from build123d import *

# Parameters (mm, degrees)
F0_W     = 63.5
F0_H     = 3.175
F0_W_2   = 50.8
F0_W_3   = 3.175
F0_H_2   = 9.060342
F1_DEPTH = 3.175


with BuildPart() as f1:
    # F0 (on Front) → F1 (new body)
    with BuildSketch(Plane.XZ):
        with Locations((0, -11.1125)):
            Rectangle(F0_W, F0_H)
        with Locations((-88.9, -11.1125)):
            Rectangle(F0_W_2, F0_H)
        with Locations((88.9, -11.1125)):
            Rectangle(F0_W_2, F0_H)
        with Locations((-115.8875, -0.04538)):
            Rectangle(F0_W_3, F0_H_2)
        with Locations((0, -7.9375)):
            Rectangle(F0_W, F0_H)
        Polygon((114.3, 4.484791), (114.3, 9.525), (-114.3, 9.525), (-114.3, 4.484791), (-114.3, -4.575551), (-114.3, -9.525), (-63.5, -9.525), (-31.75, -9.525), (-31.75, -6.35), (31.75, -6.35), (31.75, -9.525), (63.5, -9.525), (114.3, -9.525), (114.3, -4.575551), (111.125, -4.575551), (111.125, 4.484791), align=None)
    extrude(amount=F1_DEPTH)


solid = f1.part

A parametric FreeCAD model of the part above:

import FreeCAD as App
import Part
import Sketcher
from FreeCAD import Vector
Q = App.Units.Quantity


def add_polygon(sketch, points):
    """Adds a closed chain of lines whose ends are joined by coincident constraints."""
    first, n = sketch.GeometryCount, len(points)
    for a, b in zip(points, points[1:] + points[:1]):
        sketch.addGeometry(Part.LineSegment(App.Vector(*a, 0), App.Vector(*b, 0)), False)
    for i in range(n):
        sketch.addConstraint(Sketcher.Constraint("Coincident", first + i, 2, first + (i + 1) % n, 1))

doc = App.newDocument("Part")
params = doc.addObject("Spreadsheet::Sheet", "Params")
for row, (alias, value) in enumerate([
    ("sketch1_width", "2 in"),
    ("sketch1_width2", "9 in"),
    ("sketch1_width3", "2.5 in"),
    ("sketch1_width4", "0.125 in"),
    ("pad1_length", "0.125 in"),
], start=1):
    params.set(f"A{row}", alias)
    params.set(f"B{row}", "=" + value)
    params.setAlias(f"B{row}", alias)

body = doc.addObject("PartDesign::Body", "Body")

sketch1 = body.newObject("Sketcher::SketchObject", "Sketch")
sketch1.AttachmentSupport = (doc.getObject("XZ_Plane"), [""])
sketch1.MapMode = "FlatFace"
add_polygon(sketch1, [(-31.75, -12.7), (31.75, -12.7), (31.75, -9.525), (63.5, -9.525), (63.5, -12.7), (114.3, -12.7), (114.3, -4.575551), (111.125, -4.575551), (111.125, 4.484791), (114.3, 4.484791), (114.3, 9.525), (-114.3, 9.525), (-114.3, 4.484791), (-117.475, 4.484791), (-117.475, -4.575551), (-114.3, -4.575551), (-114.3, -12.7), (-63.5, -12.7), (-63.5, -9.525), (-31.75, -9.525)])
sketch1.addConstraint(Sketcher.Constraint("Horizontal", 0))
sketch1.addConstraint(Sketcher.Constraint("Vertical", 1))
sketch1.addConstraint(Sketcher.Constraint("Horizontal", 2))
sketch1.addConstraint(Sketcher.Constraint("Vertical", 3))
sketch1.addConstraint(Sketcher.Constraint("Horizontal", 4))
sketch1.addConstraint(Sketcher.Constraint("Vertical", 5))
sketch1.addConstraint(Sketcher.Constraint("Horizontal", 6))
sketch1.addConstraint(Sketcher.Constraint("Vertical", 7))
sketch1.addConstraint(Sketcher.Constraint("Horizontal", 8))
sketch1.addConstraint(Sketcher.Constraint("Vertical", 9))
sketch1.addConstraint(Sketcher.Constraint("Horizontal", 10))
sketch1.addConstraint(Sketcher.Constraint("Vertical", 11))
sketch1.addConstraint(Sketcher.Constraint("Horizontal", 12))
sketch1.addConstraint(Sketcher.Constraint("Vertical", 13))
sketch1.addConstraint(Sketcher.Constraint("Horizontal", 14))
sketch1.addConstraint(Sketcher.Constraint("Vertical", 15))
sketch1.addConstraint(Sketcher.Constraint("Horizontal", 16))
sketch1.addConstraint(Sketcher.Constraint("Vertical", 17))
sketch1.addConstraint(Sketcher.Constraint("Horizontal", 18))
sketch1.addConstraint(Sketcher.Constraint("Vertical", 19))
sketch1.addConstraint(Sketcher.Constraint("Symmetric", 8, 2, 11, 2, -2))
sketch1.addConstraint(Sketcher.Constraint("Symmetric", 5, 2, 14, 2, -2))
sketch1.addConstraint(Sketcher.Constraint("Symmetric", 3, 2, 16, 2, -2))
sketch1.addConstraint(Sketcher.Constraint("Symmetric", 1, 2, 18, 2, -2))
sketch1.addConstraint(Sketcher.Constraint("Horizontal", 0, 2, 3, 2))
sketch1.addConstraint(Sketcher.Constraint("Vertical", 5, 2, 8, 2))
sketch1.addConstraint(Sketcher.Constraint("Equal", 8, 12))
sketch1.addConstraint(Sketcher.Constraint("Equal", 14, 1))
sketch1.addConstraint(Sketcher.Constraint("DistanceX", 4, 1, 4, 2, Q("2 in")))
sketch1.addConstraint(Sketcher.Constraint("DistanceX", 10, 2, 10, 1, Q("9 in")))
sketch1.addConstraint(Sketcher.Constraint("DistanceX", 0, 1, 0, 2, Q("2.5 in")))
sketch1.addConstraint(Sketcher.Constraint("DistanceY", 0, 2, -1, 1, Q("0.5 in")))
sketch1.addConstraint(Sketcher.Constraint("DistanceX", 6, 2, 6, 1, Q("0.125 in")))
sketch1.addConstraint(Sketcher.Constraint("DistanceY", 1, 2, 10, 2, Q("0.75 in")))
sketch1.addConstraint(Sketcher.Constraint("DistanceY", 5, 1, 5, 2, 8.124449))
sketch1.addConstraint(Sketcher.Constraint("DistanceY", 9, 1, 9, 2, 5.040209))
sketch1.setExpression("Constraints[48]", "Params.sketch1_width")
sketch1.setExpression("Constraints[49]", "Params.sketch1_width2")
sketch1.setExpression("Constraints[50]", "Params.sketch1_width3")
sketch1.setExpression("Constraints[52]", "Params.sketch1_width4")
pad1 = body.newObject("PartDesign::Pad", "Pad")
pad1.Profile = sketch1
pad1.setExpression("Length", "Params.pad1_length")

doc.recompute()
